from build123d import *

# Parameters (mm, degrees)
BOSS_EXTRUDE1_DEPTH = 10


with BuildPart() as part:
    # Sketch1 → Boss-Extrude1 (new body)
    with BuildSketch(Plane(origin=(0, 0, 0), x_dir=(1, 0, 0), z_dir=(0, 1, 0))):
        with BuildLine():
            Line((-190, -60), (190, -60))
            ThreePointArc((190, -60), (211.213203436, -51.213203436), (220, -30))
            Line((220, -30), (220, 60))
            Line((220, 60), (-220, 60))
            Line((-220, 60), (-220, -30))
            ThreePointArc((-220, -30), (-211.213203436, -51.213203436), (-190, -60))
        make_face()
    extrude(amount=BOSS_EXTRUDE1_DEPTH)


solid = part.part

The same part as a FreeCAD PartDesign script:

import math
import FreeCAD as App
import Part
import Sketcher
Q = App.Units.Quantity

doc = App.newDocument("Part")
params = doc.addObject("Spreadsheet::Sheet", "Params")
for row, (alias, value) in enumerate([
    ("sketch1_radius", "30 mm"),
    ("sketch1_width", "380 mm"),
    ("sketch1_height", "90 mm"),
    ("pad1_length", "10 mm"),
], start=1):
    params.set(f"A{row}", alias)
    params.set(f"B{row}", "=" + value)
    params.setAlias(f"B{row}", alias)

body = doc.addObject("PartDesign::Body", "Body")

# Sketch on XZ plane
sketch1 = doc.addObject("Sketcher::SketchObject", "Sketch")
body.addObject(sketch1)
sketch1.AttachmentSupport = (doc.XZ_Plane, [""])
sketch1.MapMode = "FlatFace"
sketch1.addGeometry([
    Part.LineSegment(App.Vector(-190, 60, 0), App.Vector(190, 60, 0)),  # 0
    Part.ArcOfCircle(Part.Circle(App.Vector(190, 30, 0), App.Vector(0, 0, 1), 30), math.radians(0), math.radians(90)),  # 1
    Part.LineSegment(App.Vector(220, 30, 0), App.Vector(220, -60, 0)),  # 2
    Part.LineSegment(App.Vector(220, -60, 0), App.Vector(-220, -60, 0)),  # 3
    Part.LineSegment(App.Vector(-220, -60, 0), App.Vector(-220, 30, 0)),  # 4
    Part.ArcOfCircle(Part.Circle(App.Vector(-190, 30, 0), App.Vector(0, 0, 1), 30), math.radians(90), math.radians(180)),  # 5
], False)
sketch1.addConstraint([
    Sketcher.Constraint("Tangent", 0, 2, 1, 2),
    Sketcher.Constraint("Tangent", 1, 1, 2, 1),
    Sketcher.Constraint("Coincident", 2, 2, 3, 1),
    Sketcher.Constraint("Coincident", 3, 2, 4, 1),
    Sketcher.Constraint("Tangent", 4, 2, 5, 2),
    Sketcher.Constraint("Tangent", 5, 1, 0, 1),
    Sketcher.Constraint("Horizontal", 0),
    Sketcher.Constraint("Vertical", 2),
    Sketcher.Constraint("Horizontal", 3),
    Sketcher.Constraint("Vertical", 4),
    Sketcher.Constraint("Equal", 1, 5),
    Sketcher.Constraint("Radius", 1, Q("30 mm")),
    Sketcher.Constraint("DistanceX", 0, 1, 0, 2, Q("380 mm")),
    Sketcher.Constraint("DistanceY", 2, 2, 2, 1, Q("90 mm")),
    Sketcher.Constraint("DistanceX", -1, 1, 1, 3, Q("190 mm")),
    Sketcher.Constraint("DistanceY", -1, 1, 1, 3, Q("30 mm")),
])
sketch1.setExpression("Constraints[11]", "Params.sketch1_radius")
sketch1.setExpression("Constraints[12]", "Params.sketch1_width")
sketch1.setExpression("Constraints[13]", "Params.sketch1_height")
pad1 = doc.addObject("PartDesign::Pad", "Pad")
body.addObject(pad1)
pad1.Profile = sketch1
pad1.setExpression("Length", "Params.pad1_length")
pad1.Reversed = True

doc.recompute()
